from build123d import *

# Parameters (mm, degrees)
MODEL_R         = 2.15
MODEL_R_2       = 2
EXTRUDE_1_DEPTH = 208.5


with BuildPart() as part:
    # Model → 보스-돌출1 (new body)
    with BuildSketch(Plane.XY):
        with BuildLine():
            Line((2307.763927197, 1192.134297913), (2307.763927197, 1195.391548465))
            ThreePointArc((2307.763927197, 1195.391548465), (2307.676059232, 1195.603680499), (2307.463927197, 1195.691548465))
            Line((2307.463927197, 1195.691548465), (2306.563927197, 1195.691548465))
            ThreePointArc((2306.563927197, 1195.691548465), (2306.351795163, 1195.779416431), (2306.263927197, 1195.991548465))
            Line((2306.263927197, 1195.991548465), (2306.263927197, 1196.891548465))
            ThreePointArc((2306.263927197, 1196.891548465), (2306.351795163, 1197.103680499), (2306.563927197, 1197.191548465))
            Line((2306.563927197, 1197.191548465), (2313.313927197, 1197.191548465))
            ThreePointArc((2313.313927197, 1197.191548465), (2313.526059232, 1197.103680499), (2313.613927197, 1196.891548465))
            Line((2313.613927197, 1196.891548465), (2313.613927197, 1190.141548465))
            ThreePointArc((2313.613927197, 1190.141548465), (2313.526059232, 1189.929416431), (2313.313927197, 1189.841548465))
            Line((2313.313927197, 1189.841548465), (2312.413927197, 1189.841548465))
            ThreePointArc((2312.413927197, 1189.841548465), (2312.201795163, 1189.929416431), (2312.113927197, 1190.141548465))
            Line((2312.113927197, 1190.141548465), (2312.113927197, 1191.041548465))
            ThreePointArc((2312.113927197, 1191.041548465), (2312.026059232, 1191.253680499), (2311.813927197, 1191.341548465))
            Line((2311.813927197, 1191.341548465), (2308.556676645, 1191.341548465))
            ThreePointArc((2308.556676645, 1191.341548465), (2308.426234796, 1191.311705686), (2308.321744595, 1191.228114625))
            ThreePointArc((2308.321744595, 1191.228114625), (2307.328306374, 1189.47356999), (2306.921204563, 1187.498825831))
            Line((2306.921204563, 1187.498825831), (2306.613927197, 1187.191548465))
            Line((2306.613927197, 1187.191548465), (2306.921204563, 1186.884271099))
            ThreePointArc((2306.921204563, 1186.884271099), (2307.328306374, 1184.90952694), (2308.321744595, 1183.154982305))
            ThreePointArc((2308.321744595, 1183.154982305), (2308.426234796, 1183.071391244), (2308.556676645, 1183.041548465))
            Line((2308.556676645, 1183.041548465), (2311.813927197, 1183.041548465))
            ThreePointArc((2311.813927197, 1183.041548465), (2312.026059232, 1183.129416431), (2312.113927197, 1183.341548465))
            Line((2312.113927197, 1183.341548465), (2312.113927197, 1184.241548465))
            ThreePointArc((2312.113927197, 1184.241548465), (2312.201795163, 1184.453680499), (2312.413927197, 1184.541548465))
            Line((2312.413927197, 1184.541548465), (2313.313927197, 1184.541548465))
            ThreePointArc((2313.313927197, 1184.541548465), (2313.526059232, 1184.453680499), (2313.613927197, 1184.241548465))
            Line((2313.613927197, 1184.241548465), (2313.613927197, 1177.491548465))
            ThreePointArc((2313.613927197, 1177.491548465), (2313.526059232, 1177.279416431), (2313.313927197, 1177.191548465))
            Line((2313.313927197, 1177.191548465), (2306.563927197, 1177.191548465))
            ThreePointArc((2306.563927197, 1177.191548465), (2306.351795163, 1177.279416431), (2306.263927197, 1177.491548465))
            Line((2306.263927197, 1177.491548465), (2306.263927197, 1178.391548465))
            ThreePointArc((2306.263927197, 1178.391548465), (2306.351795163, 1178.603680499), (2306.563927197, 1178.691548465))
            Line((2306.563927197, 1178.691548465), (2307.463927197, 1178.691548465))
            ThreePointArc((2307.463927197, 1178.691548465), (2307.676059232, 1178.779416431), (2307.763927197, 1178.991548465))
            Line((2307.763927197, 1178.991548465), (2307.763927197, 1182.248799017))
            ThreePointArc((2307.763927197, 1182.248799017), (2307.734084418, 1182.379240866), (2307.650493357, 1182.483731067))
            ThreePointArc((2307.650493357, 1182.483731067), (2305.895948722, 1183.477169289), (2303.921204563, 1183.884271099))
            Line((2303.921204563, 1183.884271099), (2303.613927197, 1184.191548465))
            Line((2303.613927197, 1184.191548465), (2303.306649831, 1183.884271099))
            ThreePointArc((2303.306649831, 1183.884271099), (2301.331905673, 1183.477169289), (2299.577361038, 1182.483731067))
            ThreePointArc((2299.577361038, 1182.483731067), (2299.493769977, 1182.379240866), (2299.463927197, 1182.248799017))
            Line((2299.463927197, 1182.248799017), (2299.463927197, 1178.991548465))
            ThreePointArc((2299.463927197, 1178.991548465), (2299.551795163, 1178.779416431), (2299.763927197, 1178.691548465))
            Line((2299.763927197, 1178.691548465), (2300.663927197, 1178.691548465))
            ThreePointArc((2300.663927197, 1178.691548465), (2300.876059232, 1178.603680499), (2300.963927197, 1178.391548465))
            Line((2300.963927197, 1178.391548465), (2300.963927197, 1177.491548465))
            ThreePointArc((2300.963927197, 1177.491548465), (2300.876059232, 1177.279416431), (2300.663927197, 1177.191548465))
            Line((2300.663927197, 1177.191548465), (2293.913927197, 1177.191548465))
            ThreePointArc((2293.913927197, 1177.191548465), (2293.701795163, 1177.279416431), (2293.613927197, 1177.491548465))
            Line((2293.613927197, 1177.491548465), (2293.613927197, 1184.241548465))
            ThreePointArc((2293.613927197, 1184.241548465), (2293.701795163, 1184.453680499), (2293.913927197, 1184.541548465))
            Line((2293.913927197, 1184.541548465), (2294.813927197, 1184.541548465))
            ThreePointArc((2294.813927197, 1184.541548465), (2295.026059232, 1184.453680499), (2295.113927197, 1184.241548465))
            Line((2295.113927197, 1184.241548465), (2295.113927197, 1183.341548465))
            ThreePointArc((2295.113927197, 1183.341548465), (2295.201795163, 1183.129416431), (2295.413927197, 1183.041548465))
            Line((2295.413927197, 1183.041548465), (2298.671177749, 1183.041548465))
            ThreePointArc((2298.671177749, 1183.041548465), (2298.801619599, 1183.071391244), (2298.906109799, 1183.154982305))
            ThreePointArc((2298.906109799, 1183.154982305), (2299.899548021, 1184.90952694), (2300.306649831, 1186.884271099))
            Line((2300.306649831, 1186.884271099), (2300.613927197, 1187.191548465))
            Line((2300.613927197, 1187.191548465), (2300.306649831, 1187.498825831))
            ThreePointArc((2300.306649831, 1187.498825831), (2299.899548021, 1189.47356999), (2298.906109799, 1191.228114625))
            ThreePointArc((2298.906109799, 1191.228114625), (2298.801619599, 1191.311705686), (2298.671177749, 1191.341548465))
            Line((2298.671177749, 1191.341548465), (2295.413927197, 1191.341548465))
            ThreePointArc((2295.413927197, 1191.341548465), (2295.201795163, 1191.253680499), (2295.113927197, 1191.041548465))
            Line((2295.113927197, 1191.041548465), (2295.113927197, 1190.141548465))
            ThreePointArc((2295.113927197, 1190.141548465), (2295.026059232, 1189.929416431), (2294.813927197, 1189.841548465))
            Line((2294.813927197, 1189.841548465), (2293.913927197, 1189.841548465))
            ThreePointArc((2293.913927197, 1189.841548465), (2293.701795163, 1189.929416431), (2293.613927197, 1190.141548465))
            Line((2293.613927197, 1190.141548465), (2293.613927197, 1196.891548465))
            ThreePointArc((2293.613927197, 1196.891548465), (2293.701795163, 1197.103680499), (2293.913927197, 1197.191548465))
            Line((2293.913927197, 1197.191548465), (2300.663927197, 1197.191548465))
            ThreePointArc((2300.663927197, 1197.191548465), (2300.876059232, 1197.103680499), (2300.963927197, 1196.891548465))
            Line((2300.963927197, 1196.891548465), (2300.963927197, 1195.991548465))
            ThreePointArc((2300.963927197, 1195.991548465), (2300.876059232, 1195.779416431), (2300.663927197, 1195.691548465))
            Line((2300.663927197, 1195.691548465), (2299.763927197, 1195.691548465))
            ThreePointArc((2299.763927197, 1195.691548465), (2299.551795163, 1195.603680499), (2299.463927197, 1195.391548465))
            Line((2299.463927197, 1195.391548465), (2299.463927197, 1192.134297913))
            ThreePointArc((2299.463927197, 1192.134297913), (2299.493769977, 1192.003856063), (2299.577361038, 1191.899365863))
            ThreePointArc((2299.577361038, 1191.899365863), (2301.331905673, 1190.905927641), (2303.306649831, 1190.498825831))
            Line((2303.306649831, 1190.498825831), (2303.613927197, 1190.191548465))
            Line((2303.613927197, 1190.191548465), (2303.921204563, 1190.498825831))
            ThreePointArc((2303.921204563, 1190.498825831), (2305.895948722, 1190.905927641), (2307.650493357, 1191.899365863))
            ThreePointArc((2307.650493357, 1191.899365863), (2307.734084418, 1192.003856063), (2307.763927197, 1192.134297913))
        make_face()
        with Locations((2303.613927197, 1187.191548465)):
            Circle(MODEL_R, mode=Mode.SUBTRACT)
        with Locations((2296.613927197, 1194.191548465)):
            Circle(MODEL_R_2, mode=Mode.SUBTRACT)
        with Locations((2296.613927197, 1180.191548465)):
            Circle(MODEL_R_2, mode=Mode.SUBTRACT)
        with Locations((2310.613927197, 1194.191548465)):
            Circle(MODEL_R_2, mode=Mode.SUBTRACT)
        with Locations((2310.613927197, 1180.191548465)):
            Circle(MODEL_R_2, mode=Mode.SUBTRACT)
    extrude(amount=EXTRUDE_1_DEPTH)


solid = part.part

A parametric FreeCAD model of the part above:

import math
import FreeCAD as App
import Part
import Sketcher
from FreeCAD import Vector
Q = App.Units.Quantity

doc = App.newDocument("Part")
params = doc.addObject("Spreadsheet::Sheet", "Params")
for row, (alias, value) in enumerate([
    ("sketch1_diameter", "4 mm"),
    ("sketch1_diameter2", "4.3 mm"),
    ("sketch1_radius", "0.3 mm"),
    ("sketch1_width", "0.9 mm"),
    ("sketch1_width2", "6.75 mm"),
    ("pad1_length", "208.5 mm"),
], start=1):
    params.set(f"A{row}", alias)
    params.set(f"B{row}", "=" + value)
    params.setAlias(f"B{row}", alias)

body = doc.addObject("PartDesign::Body", "Body")

sketch1 = body.newObject("Sketcher::SketchObject", "Sketch")
sketch1.AttachmentSupport = (doc.getObject("XY_Plane"), [""])
sketch1.MapMode = "FlatFace"
sketch1.addGeometry([
    Part.LineSegment(Vector(2307.76, 1195.39, 0), Vector(2307.76, 1192.13, 0)),
    Part.ArcOfCircle(Part.Circle(Vector(2307.46, 1192.13, 0), Vector(0, 0, 1), 0.3), math.radians(-52), math.radians(0)),
    Part.ArcOfCircle(Part.Circle(Vector(2303.61, 1196.98, 0), Vector(0, 0, 1), 6.49), math.radians(-87), math.radians(-52)),
    Part.LineSegment(Vector(2303.92, 1190.5, 0), Vector(2303.61, 1190.19, 0)),
    Part.LineSegment(Vector(2303.61, 1190.19, 0), Vector(2303.31, 1190.5, 0)),
    Part.ArcOfCircle(Part.Circle(Vector(2303.61, 1196.98, 0), Vector(0, 0, 1), 6.49), math.radians(-128), math.radians(-93)),
    Part.ArcOfCircle(Part.Circle(Vector(2299.76, 1192.13, 0), Vector(0, 0, 1), 0.3), math.radians(-180), math.radians(-128)),
    Part.LineSegment(Vector(2299.46, 1192.13, 0), Vector(2299.46, 1195.39, 0)),
    Part.ArcOfCircle(Part.Circle(Vector(2299.76, 1195.39, 0), Vector(0, 0, 1), 0.3), math.radians(90), math.radians(180)),
    Part.LineSegment(Vector(2299.76, 1195.69, 0), Vector(2300.66, 1195.69, 0)),
    Part.ArcOfCircle(Part.Circle(Vector(2300.66, 1195.99, 0), Vector(0, 0, 1), 0.3), math.radians(-90), math.radians(0)),
    Part.LineSegment(Vector(2300.96, 1195.99, 0), Vector(2300.96, 1196.89, 0)),
    Part.ArcOfCircle(Part.Circle(Vector(2300.66, 1196.89, 0), Vector(0, 0, 1), 0.3), math.radians(0), math.radians(90)),
    Part.LineSegment(Vector(2300.66, 1197.19, 0), Vector(2293.91, 1197.19, 0)),
    Part.ArcOfCircle(Part.Circle(Vector(2293.91, 1196.89, 0), Vector(0, 0, 1), 0.3), math.radians(90), math.radians(180)),
    Part.LineSegment(Vector(2293.61, 1196.89, 0), Vector(2293.61, 1190.14, 0)),
    Part.ArcOfCircle(Part.Circle(Vector(2293.91, 1190.14, 0), Vector(0, 0, 1), 0.3), math.radians(-180), math.radians(-90)),
    Part.LineSegment(Vector(2293.91, 1189.84, 0), Vector(2294.81, 1189.84, 0)),
    Part.ArcOfCircle(Part.Circle(Vector(2294.81, 1190.14, 0), Vector(0, 0, 1), 0.3), math.radians(-90), math.radians(0)),
    Part.LineSegment(Vector(2295.11, 1190.14, 0), Vector(2295.11, 1191.04, 0)),
    Part.ArcOfCircle(Part.Circle(Vector(2295.41, 1191.04, 0), Vector(0, 0, 1), 0.3), math.radians(90), math.radians(180)),
    Part.LineSegment(Vector(2295.41, 1191.34, 0), Vector(2298.67, 1191.34, 0)),
    Part.ArcOfCircle(Part.Circle(Vector(2298.67, 1191.04, 0), Vector(0, 0, 1), 0.3), math.radians(38), math.radians(90)),
    Part.ArcOfCircle(Part.Circle(Vector(2293.82, 1187.19, 0), Vector(0, 0, 1), 6.49), math.radians(3), math.radians(38)),
    Part.LineSegment(Vector(2300.31, 1187.5, 0), Vector(2300.61, 1187.19, 0)),
    Part.LineSegment(Vector(2300.61, 1187.19, 0), Vector(2300.31, 1186.88, 0)),
    Part.ArcOfCircle(Part.Circle(Vector(2293.82, 1187.19, 0), Vector(0, 0, 1), 6.49), math.radians(-38), math.radians(-3)),
    Part.ArcOfCircle(Part.Circle(Vector(2298.67, 1183.34, 0), Vector(0, 0, 1), 0.3), math.radians(-90), math.radians(-38)),
    Part.LineSegment(Vector(2298.67, 1183.04, 0), Vector(2295.41, 1183.04, 0)),
    Part.ArcOfCircle(Part.Circle(Vector(2295.41, 1183.34, 0), Vector(0, 0, 1), 0.3), math.radians(-180), math.radians(-90)),
    Part.LineSegment(Vector(2295.11, 1183.34, 0), Vector(2295.11, 1184.24, 0)),
    Part.ArcOfCircle(Part.Circle(Vector(2294.81, 1184.24, 0), Vector(0, 0, 1), 0.3), math.radians(0), math.radians(90)),
    Part.LineSegment(Vector(2294.81, 1184.54, 0), Vector(2293.91, 1184.54, 0)),
    Part.ArcOfCircle(Part.Circle(Vector(2293.91, 1184.24, 0), Vector(0, 0, 1), 0.3), math.radians(90), math.radians(180)),
    Part.LineSegment(Vector(2293.61, 1184.24, 0), Vector(2293.61, 1177.49, 0)),
    Part.ArcOfCircle(Part.Circle(Vector(2293.91, 1177.49, 0), Vector(0, 0, 1), 0.3), math.radians(-180), math.radians(-90)),
    Part.LineSegment(Vector(2293.91, 1177.19, 0), Vector(2300.66, 1177.19, 0)),
    Part.ArcOfCircle(Part.Circle(Vector(2300.66, 1177.49, 0), Vector(0, 0, 1), 0.3), math.radians(-90), math.radians(0)),
    Part.LineSegment(Vector(2300.96, 1177.49, 0), Vector(2300.96, 1178.39, 0)),
    Part.ArcOfCircle(Part.Circle(Vector(2300.66, 1178.39, 0), Vector(0, 0, 1), 0.3), math.radians(0), math.radians(90)),
    Part.LineSegment(Vector(2300.66, 1178.69, 0), Vector(2299.76, 1178.69, 0)),
    Part.ArcOfCircle(Part.Circle(Vector(2299.76, 1178.99, 0), Vector(0, 0, 1), 0.3), math.radians(-180), math.radians(-90)),
    Part.LineSegment(Vector(2299.46, 1178.99, 0), Vector(2299.46, 1182.25, 0)),
    Part.ArcOfCircle(Part.Circle(Vector(2299.76, 1182.25, 0), Vector(0, 0, 1), 0.3), math.radians(128), math.radians(180)),
    Part.ArcOfCircle(Part.Circle(Vector(2303.61, 1177.4, 0), Vector(0, 0, 1), 6.49), math.radians(93), math.radians(128)),
    Part.LineSegment(Vector(2303.31, 1183.88, 0), Vector(2303.61, 1184.19, 0)),
    Part.LineSegment(Vector(2303.61, 1184.19, 0), Vector(2303.92, 1183.88, 0)),
    Part.ArcOfCircle(Part.Circle(Vector(2303.61, 1177.4, 0), Vector(0, 0, 1), 6.49), math.radians(52), math.radians(87)),
    Part.ArcOfCircle(Part.Circle(Vector(2307.46, 1182.25, 0), Vector(0, 0, 1), 0.3), math.radians(0), math.radians(52)),
    Part.LineSegment(Vector(2307.76, 1182.25, 0), Vector(2307.76, 1178.99, 0)),
    Part.ArcOfCircle(Part.Circle(Vector(2307.46, 1178.99, 0), Vector(0, 0, 1), 0.3), math.radians(-90), math.radians(0)),
    Part.LineSegment(Vector(2307.46, 1178.69, 0), Vector(2306.56, 1178.69, 0)),
    Part.ArcOfCircle(Part.Circle(Vector(2306.56, 1178.39, 0), Vector(0, 0, 1), 0.3), math.radians(90), math.radians(180)),
    Part.LineSegment(Vector(2306.26, 1178.39, 0), Vector(2306.26, 1177.49, 0)),
    Part.ArcOfCircle(Part.Circle(Vector(2306.56, 1177.49, 0), Vector(0, 0, 1), 0.3), math.radians(-180), math.radians(-90)),
    Part.LineSegment(Vector(2306.56, 1177.19, 0), Vector(2313.31, 1177.19, 0)),
    Part.ArcOfCircle(Part.Circle(Vector(2313.31, 1177.49, 0), Vector(0, 0, 1), 0.3), math.radians(-90), math.radians(0)),
    Part.LineSegment(Vector(2313.61, 1177.49, 0), Vector(2313.61, 1184.24, 0)),
    Part.ArcOfCircle(Part.Circle(Vector(2313.31, 1184.24, 0), Vector(0, 0, 1), 0.3), math.radians(0), math.radians(90)),
    Part.LineSegment(Vector(2313.31, 1184.54, 0), Vector(2312.41, 1184.54, 0)),
    Part.ArcOfCircle(Part.Circle(Vector(2312.41, 1184.24, 0), Vector(0, 0, 1), 0.3), math.radians(90), math.radians(180)),
    Part.LineSegment(Vector(2312.11, 1184.24, 0), Vector(2312.11, 1183.34, 0)),
    Part.ArcOfCircle(Part.Circle(Vector(2311.81, 1183.34, 0), Vector(0, 0, 1), 0.3), math.radians(-90), math.radians(0)),
    Part.LineSegment(Vector(2311.81, 1183.04, 0), Vector(2308.56, 1183.04, 0)),
    Part.ArcOfCircle(Part.Circle(Vector(2308.56, 1183.34, 0), Vector(0, 0, 1), 0.3), math.radians(-142), math.radians(-90)),
    Part.ArcOfCircle(Part.Circle(Vector(2313.4, 1187.19, 0), Vector(0, 0, 1), 6.49), math.radians(-177), math.radians(-142)),
    Part.LineSegment(Vector(2306.92, 1186.88, 0), Vector(2306.61, 1187.19, 0)),
    Part.LineSegment(Vector(2306.61, 1187.19, 0), Vector(2306.92, 1187.5, 0)),
    Part.ArcOfCircle(Part.Circle(Vector(2313.4, 1187.19, 0), Vector(0, 0, 1), 6.49), math.radians(142), math.radians(177)),
    Part.ArcOfCircle(Part.Circle(Vector(2308.56, 1191.04, 0), Vector(0, 0, 1), 0.3), math.radians(90), math.radians(142)),
    Part.LineSegment(Vector(2308.56, 1191.34, 0), Vector(2311.81, 1191.34, 0)),
    Part.ArcOfCircle(Part.Circle(Vector(2311.81, 1191.04, 0), Vector(0, 0, 1), 0.3), math.radians(0), math.radians(90)),
    Part.LineSegment(Vector(2312.11, 1191.04, 0), Vector(2312.11, 1190.14, 0)),
    Part.ArcOfCircle(Part.Circle(Vector(2312.41, 1190.14, 0), Vector(0, 0, 1), 0.3), math.radians(-180), math.radians(-90)),
    Part.LineSegment(Vector(2312.41, 1189.84, 0), Vector(2313.31, 1189.84, 0)),
    Part.ArcOfCircle(Part.Circle(Vector(2313.31, 1190.14, 0), Vector(0, 0, 1), 0.3), math.radians(-90), math.radians(0)),
    Part.LineSegment(Vector(2313.61, 1190.14, 0), Vector(2313.61, 1196.89, 0)),
    Part.ArcOfCircle(Part.Circle(Vector(2313.31, 1196.89, 0), Vector(0, 0, 1), 0.3), math.radians(0), math.radians(90)),
    Part.LineSegment(Vector(2313.31, 1197.19, 0), Vector(2306.56, 1197.19, 0)),
    Part.ArcOfCircle(Part.Circle(Vector(2306.56, 1196.89, 0), Vector(0, 0, 1), 0.3), math.radians(90), math.radians(180)),
    Part.LineSegment(Vector(2306.26, 1196.89, 0), Vector(2306.26, 1195.99, 0)),
    Part.ArcOfCircle(Part.Circle(Vector(2306.56, 1195.99, 0), Vector(0, 0, 1), 0.3), math.radians(-180), math.radians(-90)),
    Part.LineSegment(Vector(2306.56, 1195.69, 0), Vector(2307.46, 1195.69, 0)),
    Part.ArcOfCircle(Part.Circle(Vector(2307.46, 1195.39, 0), Vector(0, 0, 1), 0.3), math.radians(0), math.radians(90)),
    Part.Circle(Vector(2310.61, 1180.19, 0), Vector(0, 0, 1), 2),
    Part.Circle(Vector(2296.61, 1180.19, 0), Vector(0, 0, 1), 2),
    Part.Circle(Vector(2310.61, 1194.19, 0), Vector(0, 0, 1), 2),
    Part.Circle(Vector(2303.61, 1187.19, 0), Vector(0, 0, 1), 2.15),
    Part.Circle(Vector(2296.61, 1194.19, 0), Vector(0, 0, 1), 2),
], False)
sketch1.addConstraint([
    Sketcher.Constraint("Tangent", 0, 2, 1, 2),
    Sketcher.Constraint("Tangent", 1, 1, 2, 2),
    Sketcher.Constraint("Coincident", 2, 1, 3, 1),
    Sketcher.Constraint("Coincident", 3, 2, 4, 1),
    Sketcher.Constraint("Coincident", 4, 2, 5, 2),
    Sketcher.Constraint("Tangent", 5, 1, 6, 2),
    Sketcher.Constraint("Tangent", 6, 1, 7, 1),
    Sketcher.Constraint("Tangent", 7, 2, 8, 2),
    Sketcher.Constraint("Tangent", 8, 1, 9, 1),
    Sketcher.Constraint("Tangent", 9, 2, 10, 1),
    Sketcher.Constraint("Tangent", 10, 2, 11, 1),
    Sketcher.Constraint("Tangent", 11, 2, 12, 1),
    Sketcher.Constraint("Tangent", 12, 2, 13, 1),
    Sketcher.Constraint("Tangent", 13, 2, 14, 1),
    Sketcher.Constraint("Tangent", 14, 2, 15, 1),
    Sketcher.Constraint("Tangent", 15, 2, 16, 1),
    Sketcher.Constraint("Tangent", 16, 2, 17, 1),
    Sketcher.Constraint("Tangent", 17, 2, 18, 1),
    Sketcher.Constraint("Tangent", 18, 2, 19, 1),
    Sketcher.Constraint("Tangent", 19, 2, 20, 2),
    Sketcher.Constraint("Tangent", 20, 1, 21, 1),
    Sketcher.Constraint("Tangent", 21, 2, 22, 2),
    Sketcher.Constraint("Tangent", 22, 1, 23, 2),
    Sketcher.Constraint("Coincident", 23, 1, 24, 1),
    Sketcher.Constraint("Coincident", 24, 2, 25, 1),
    Sketcher.Constraint("Coincident", 25, 2, 26, 2),
    Sketcher.Constraint("Tangent", 26, 1, 27, 2),
    Sketcher.Constraint("Tangent", 27, 1, 28, 1),
    Sketcher.Constraint("Tangent", 28, 2, 29, 2),
    Sketcher.Constraint("Tangent", 29, 1, 30, 1),
    Sketcher.Constraint("Tangent", 30, 2, 31, 1),
    Sketcher.Constraint("Tangent", 31, 2, 32, 1),
    Sketcher.Constraint("Tangent", 32, 2, 33, 1),
    Sketcher.Constraint("Tangent", 33, 2, 34, 1),
    Sketcher.Constraint("Tangent", 34, 2, 35, 1),
    Sketcher.Constraint("Tangent", 35, 2, 36, 1),
    Sketcher.Constraint("Tangent", 36, 2, 37, 1),
    Sketcher.Constraint("Tangent", 37, 2, 38, 1),
    Sketcher.Constraint("Tangent", 38, 2, 39, 1),
    Sketcher.Constraint("Tangent", 39, 2, 40, 1),
    Sketcher.Constraint("Tangent", 40, 2, 41, 2),
    Sketcher.Constraint("Tangent", 41, 1, 42, 1),
    Sketcher.Constraint("Tangent", 42, 2, 43, 2),
    Sketcher.Constraint("Tangent", 43, 1, 44, 2),
    Sketcher.Constraint("Coincident", 44, 1, 45, 1),
    Sketcher.Constraint("Coincident", 45, 2, 46, 1),
    Sketcher.Constraint("Coincident", 46, 2, 47, 2),
    Sketcher.Constraint("Tangent", 47, 1, 48, 2),
    Sketcher.Constraint("Tangent", 48, 1, 49, 1),
    Sketcher.Constraint("Tangent", 49, 2, 50, 2),
    Sketcher.Constraint("Tangent", 50, 1, 51, 1),
    Sketcher.Constraint("Tangent", 51, 2, 52, 1),
    Sketcher.Constraint("Tangent", 52, 2, 53, 1),
    Sketcher.Constraint("Tangent", 53, 2, 54, 1),
    Sketcher.Constraint("Tangent", 54, 2, 55, 1),
    Sketcher.Constraint("Tangent", 55, 2, 56, 1),
    Sketcher.Constraint("Tangent", 56, 2, 57, 1),
    Sketcher.Constraint("Tangent", 57, 2, 58, 1),
    Sketcher.Constraint("Tangent", 58, 2, 59, 1),
    Sketcher.Constraint("Tangent", 59, 2, 60, 1),
    Sketcher.Constraint("Tangent", 60, 2, 61, 1),
    Sketcher.Constraint("Tangent", 61, 2, 62, 2),
    Sketcher.Constraint("Tangent", 62, 1, 63, 1),
    Sketcher.Constraint("Tangent", 63, 2, 64, 2),
    Sketcher.Constraint("Tangent", 64, 1, 65, 2),
    Sketcher.Constraint("Coincident", 65, 1, 66, 1),
    Sketcher.Constraint("Coincident", 66, 2, 67, 1),
    Sketcher.Constraint("Coincident", 67, 2, 68, 2),
    Sketcher.Constraint("Tangent", 68, 1, 69, 2),
    Sketcher.Constraint("Tangent", 69, 1, 70, 1),
    Sketcher.Constraint("Tangent", 70, 2, 71, 2),
    Sketcher.Constraint("Tangent", 71, 1, 72, 1),
    Sketcher.Constraint("Tangent", 72, 2, 73, 1),
    Sketcher.Constraint("Tangent", 73, 2, 74, 1),
    Sketcher.Constraint("Tangent", 74, 2, 75, 1),
    Sketcher.Constraint("Tangent", 75, 2, 76, 1),
    Sketcher.Constraint("Tangent", 76, 2, 77, 1),
    Sketcher.Constraint("Tangent", 77, 2, 78, 1),
    Sketcher.Constraint("Tangent", 78, 2, 79, 1),
    Sketcher.Constraint("Tangent", 79, 2, 80, 1),
    Sketcher.Constraint("Tangent", 80, 2, 81, 1),
    Sketcher.Constraint("Tangent", 81, 2, 82, 1),
    Sketcher.Constraint("Tangent", 82, 2, 83, 2),
    Sketcher.Constraint("Tangent", 83, 1, 0, 1),
    Sketcher.Constraint("Vertical", 0),
    Sketcher.Constraint("Vertical", 7),
    Sketcher.Constraint("Horizontal", 9),
    Sketcher.Constraint("Vertical", 11),
    Sketcher.Constraint("Horizontal", 13),
    Sketcher.Constraint("Vertical", 15),
    Sketcher.Constraint("Horizontal", 17),
    Sketcher.Constraint("Vertical", 19),
    Sketcher.Constraint("Horizontal", 21),
    Sketcher.Constraint("Horizontal", 28),
    Sketcher.Constraint("Vertical", 30),
    Sketcher.Constraint("Horizontal", 32),
    Sketcher.Constraint("Vertical", 34),
    Sketcher.Constraint("Horizontal", 36),
    Sketcher.Constraint("Vertical", 38),
    Sketcher.Constraint("Horizontal", 40),
    Sketcher.Constraint("Vertical", 42),
    Sketcher.Constraint("Vertical", 49),
    Sketcher.Constraint("Horizontal", 51),
    Sketcher.Constraint("Vertical", 53),
    Sketcher.Constraint("Horizontal", 55),
    Sketcher.Constraint("Vertical", 57),
    Sketcher.Constraint("Horizontal", 59),
    Sketcher.Constraint("Vertical", 61),
    Sketcher.Constraint("Horizontal", 63),
    Sketcher.Constraint("Horizontal", 70),
    Sketcher.Constraint("Vertical", 72),
    Sketcher.Constraint("Horizontal", 74),
    Sketcher.Constraint("Vertical", 76),
    Sketcher.Constraint("Horizontal", 78),
    Sketcher.Constraint("Vertical", 80),
    Sketcher.Constraint("Horizontal", 82),
    Sketcher.Constraint("Coincident", 5, 3, 2, 3),
    Sketcher.Constraint("Coincident", 26, 3, 23, 3),
    Sketcher.Constraint("Coincident", 47, 3, 44, 3),
    Sketcher.Constraint("Coincident", 68, 3, 65, 3),
    Sketcher.Constraint("Equal", 2, 5),
    Sketcher.Constraint("Equal", 1, 6),
    Sketcher.Constraint("Equal", 6, 8),
    Sketcher.Constraint("Equal", 8, 10),
    Sketcher.Constraint("Equal", 10, 12),
    Sketcher.Constraint("Equal", 12, 14),
    Sketcher.Constraint("Equal", 14, 16),
    Sketcher.Constraint("Equal", 16, 18),
    Sketcher.Constraint("Equal", 18, 20),
    Sketcher.Constraint("Equal", 20, 22),
    Sketcher.Constraint("Equal", 5, 23),
    Sketcher.Constraint("Equal", 23, 26),
    Sketcher.Constraint("Equal", 22, 27),
    Sketcher.Constraint("Equal", 27, 29),
    Sketcher.Constraint("Equal", 29, 31),
    Sketcher.Constraint("Equal", 31, 33),
    Sketcher.Constraint("Equal", 33, 35),
    Sketcher.Constraint("Equal", 35, 37),
    Sketcher.Constraint("Equal", 37, 39),
    Sketcher.Constraint("Equal", 39, 41),
    Sketcher.Constraint("Equal", 41, 43),
    Sketcher.Constraint("Equal", 26, 44),
    Sketcher.Constraint("Equal", 44, 47),
    Sketcher.Constraint("Equal", 43, 48),
    Sketcher.Constraint("Equal", 48, 50),
    Sketcher.Constraint("Equal", 50, 52),
    Sketcher.Constraint("Equal", 52, 54),
    Sketcher.Constraint("Equal", 54, 56),
    Sketcher.Constraint("Equal", 56, 58),
    Sketcher.Constraint("Equal", 58, 60),
    Sketcher.Constraint("Equal", 60, 62),
    Sketcher.Constraint("Equal", 62, 64),
    Sketcher.Constraint("Equal", 47, 65),
    Sketcher.Constraint("Equal", 65, 68),
    Sketcher.Constraint("Equal", 64, 69),
    Sketcher.Constraint("Equal", 69, 71),
    Sketcher.Constraint("Equal", 71, 73),
    Sketcher.Constraint("Equal", 73, 75),
    Sketcher.Constraint("Equal", 75, 77),
    Sketcher.Constraint("Equal", 77, 79),
    Sketcher.Constraint("Equal", 79, 81),
    Sketcher.Constraint("Equal", 81, 83),
    Sketcher.Constraint("Equal", 84, 85),
    Sketcher.Constraint("Equal", 85, 86),
    Sketcher.Constraint("Equal", 86, 88),
    Sketcher.Constraint("Perpendicular", 3, 4),
    Sketcher.Constraint("Parallel", 4, 24),
    Sketcher.Constraint("Perpendicular", 24, 25),
    Sketcher.Constraint("Parallel", 25, 45),
    Sketcher.Constraint("Perpendicular", 45, 46),
    Sketcher.Constraint("Parallel", 46, 66),
    Sketcher.Constraint("Perpendicular", 66, 67),
    Sketcher.Constraint("Horizontal", 1, 3, 6, 3),
    Sketcher.Constraint("Horizontal", 43, 3, 48, 3),
    Sketcher.Constraint("Horizontal", 41, 3, 50, 3),
    Sketcher.Constraint("Horizontal", 37, 3, 54, 3),
    Sketcher.Constraint("Horizontal", 33, 3, 58, 3),
    Sketcher.Constraint("Horizontal", 29, 3, 62, 3),
    Sketcher.Constraint("Horizontal", 26, 3, 65, 3),
    Sketcher.Constraint("Horizontal", 22, 3, 69, 3),
    Sketcher.Constraint("Horizontal", 18, 3, 73, 3),
    Sketcher.Constraint("Horizontal", 14, 3, 77, 3),
    Sketcher.Constraint("Horizontal", 10, 3, 81, 3),
    Sketcher.Constraint("Horizontal", 84, 3, 85, 3),
    Sketcher.Constraint("Horizontal", 68, 3, 87, 3),
    Sketcher.Constraint("Horizontal", 86, 3, 88, 3),
    Sketcher.Constraint("Horizontal", 2, 1, 4, 2),
    Sketcher.Constraint("Horizontal", 87, 3, 24, 2),
    Sketcher.Constraint("Horizontal", 44, 1, 46, 2),
    Sketcher.Constraint("Horizontal", 25, 2, 65, 1),
    Sketcher.Constraint("Horizontal", 24, 2, 66, 2),
    Sketcher.Constraint("Horizontal", 23, 1, 67, 2),
    Sketcher.Constraint("Vertical", 22, 3, 27, 3),
    Sketcher.Constraint("Vertical", 20, 3, 29, 3),
    Sketcher.Constraint("Vertical", 16, 3, 33, 3),
    Sketcher.Constraint("Vertical", 12, 3, 37, 3),
    Sketcher.Constraint("Vertical", 8, 3, 41, 3),
    Sketcher.Constraint("Vertical", 5, 3, 44, 3),
    Sketcher.Constraint("Vertical", 62, 3, 71, 3),
    Sketcher.Constraint("Vertical", 58, 3, 75, 3),
    Sketcher.Constraint("Vertical", 54, 3, 79, 3),
    Sketcher.Constraint("Vertical", 84, 3, 86, 3),
    Sketcher.Constraint("Vertical", 47, 3, 87, 3),
    Sketcher.Constraint("Vertical", 85, 3, 88, 3),
    Sketcher.Constraint("Vertical", 4, 2, 44, 1),
    Sketcher.Constraint("Equal", 9, 17),
    Sketcher.Constraint("Equal", 40, 51),
    Sketcher.Constraint("Equal", 36, 55),
    Sketcher.Constraint("Equal", 51, 59),
    Sketcher.Constraint("Equal", 28, 63),
    Sketcher.Constraint("Equal", 70, 0),
    Sketcher.Constraint("Equal", 82, 11),
    Sketcher.Constraint("Equal", 78, 15),
    Sketcher.Constraint("Equal", 11, 19),
    Sketcher.Constraint("Equal", 19, 30),
    Sketcher.Constraint("Equal", 15, 34),
    Sketcher.Constraint("Equal", 30, 38),
    Sketcher.Constraint("Equal", 7, 42),
    Sketcher.Constraint("Equal", 4, 24),
    Sketcher.Constraint("Diameter", 84, Q("4 mm")),
    Sketcher.Constraint("Diameter", 87, Q("4.3 mm")),
    Sketcher.Constraint("Radius", 1, Q("0.3 mm")),
    Sketcher.Constraint("DistanceX", 9, 1, 9, 2, Q("0.9 mm")),
    Sketcher.Constraint("DistanceX", 13, 2, 13, 1, Q("6.75 mm")),
    Sketcher.Constraint("Radius", 2, Q("6.490833 mm")),
    Sketcher.Constraint("DistanceX", 21, 1, 21, 2, Q("3.257251 mm")),
    Sketcher.Constraint("DistanceY", -1, 1, 43, 3, Q("1182.248799 mm")),
    Sketcher.Constraint("DistanceY", -1, 1, 2, 3, Q("1196.982382 mm")),
    Sketcher.Constraint("DistanceY", -1, 1, 8, 3, Q("1195.391548 mm")),
    Sketcher.Constraint("DistanceX", -1, 1, 65, 3, Q("2313.404761 mm")),
    Sketcher.Constraint("DistanceY", -1, 1, 84, 3, Q("1180.191548 mm")),
    Sketcher.Constraint("DistanceY", -1, 1, 86, 3, Q("1194.191548 mm")),
    Sketcher.Constraint("DistanceY", -1, 1, 3, 2, Q("1190.191548 mm")),
    Sketcher.Constraint("DistanceX", -1, 1, 84, 3, Q("2310.613927 mm")),
    Sketcher.Constraint("DistanceX", -1, 1, 85, 3, Q("2296.613927 mm")),
])
sketch1.setExpression("Constraints[219]", "Params.sketch1_diameter")
sketch1.setExpression("Constraints[220]", "Params.sketch1_diameter2")
sketch1.setExpression("Constraints[221]", "Params.sketch1_radius")
sketch1.setExpression("Constraints[222]", "Params.sketch1_width")
sketch1.setExpression("Constraints[223]", "Params.sketch1_width2")
pad1 = body.newObject("PartDesign::Pad", "Pad")
pad1.Profile = sketch1
pad1.setExpression("Length", "Params.pad1_length")

doc.recompute()
